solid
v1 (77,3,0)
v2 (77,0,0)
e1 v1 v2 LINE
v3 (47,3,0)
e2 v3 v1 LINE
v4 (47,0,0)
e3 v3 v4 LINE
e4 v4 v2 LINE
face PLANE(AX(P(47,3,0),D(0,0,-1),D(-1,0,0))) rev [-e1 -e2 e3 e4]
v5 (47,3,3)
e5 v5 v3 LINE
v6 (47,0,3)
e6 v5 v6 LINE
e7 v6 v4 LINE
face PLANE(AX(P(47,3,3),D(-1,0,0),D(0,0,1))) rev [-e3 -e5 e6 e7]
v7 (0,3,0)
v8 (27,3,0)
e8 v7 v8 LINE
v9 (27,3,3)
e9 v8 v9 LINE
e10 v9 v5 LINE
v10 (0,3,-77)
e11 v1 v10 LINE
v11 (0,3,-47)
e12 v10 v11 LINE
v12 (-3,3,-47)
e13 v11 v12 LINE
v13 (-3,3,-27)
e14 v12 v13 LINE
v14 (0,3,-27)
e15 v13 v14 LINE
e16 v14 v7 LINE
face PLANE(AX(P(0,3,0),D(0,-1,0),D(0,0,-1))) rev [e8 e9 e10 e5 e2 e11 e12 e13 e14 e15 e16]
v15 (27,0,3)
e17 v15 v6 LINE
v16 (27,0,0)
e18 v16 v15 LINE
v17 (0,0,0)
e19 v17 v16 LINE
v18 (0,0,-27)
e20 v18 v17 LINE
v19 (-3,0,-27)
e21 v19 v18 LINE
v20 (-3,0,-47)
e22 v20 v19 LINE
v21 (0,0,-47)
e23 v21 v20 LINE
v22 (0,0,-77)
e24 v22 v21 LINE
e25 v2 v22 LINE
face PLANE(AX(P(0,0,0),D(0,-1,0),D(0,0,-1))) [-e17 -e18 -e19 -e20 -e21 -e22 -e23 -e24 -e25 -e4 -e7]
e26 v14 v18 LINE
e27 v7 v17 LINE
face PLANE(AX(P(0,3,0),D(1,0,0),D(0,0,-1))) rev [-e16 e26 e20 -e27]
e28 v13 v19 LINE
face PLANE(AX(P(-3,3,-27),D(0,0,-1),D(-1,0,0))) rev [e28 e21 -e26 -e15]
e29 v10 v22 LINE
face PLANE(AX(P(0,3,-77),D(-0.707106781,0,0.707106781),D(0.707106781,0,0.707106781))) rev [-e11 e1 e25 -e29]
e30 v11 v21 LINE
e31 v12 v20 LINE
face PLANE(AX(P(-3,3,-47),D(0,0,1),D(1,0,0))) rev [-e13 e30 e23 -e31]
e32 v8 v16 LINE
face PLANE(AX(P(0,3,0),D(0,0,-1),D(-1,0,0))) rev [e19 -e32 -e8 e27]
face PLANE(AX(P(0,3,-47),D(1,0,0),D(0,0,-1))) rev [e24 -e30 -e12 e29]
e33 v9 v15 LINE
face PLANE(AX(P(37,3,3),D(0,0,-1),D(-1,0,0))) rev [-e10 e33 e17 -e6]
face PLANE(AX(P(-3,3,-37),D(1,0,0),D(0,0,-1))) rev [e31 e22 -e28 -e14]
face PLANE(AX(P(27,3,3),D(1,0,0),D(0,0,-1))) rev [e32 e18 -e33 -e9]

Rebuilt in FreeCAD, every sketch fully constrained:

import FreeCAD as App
import Part
import Sketcher

V = App.Vector


def add_polygon(sketch, points):
    """Adds a closed chain of lines whose ends are joined by coincident constraints."""
    first, n = sketch.GeometryCount, len(points)
    for a, b in zip(points, points[1:] + points[:1]):
        sketch.addGeometry(Part.LineSegment(App.Vector(*a, 0), App.Vector(*b, 0)), False)
    for i in range(n):
        sketch.addConstraint(Sketcher.Constraint("Coincident", first + i, 2, first + (i + 1) % n, 1))

doc = App.newDocument("Part")
body = doc.addObject("PartDesign::Body", "Body")

# Sketch on XZ plane
sketch1 = body.newObject("Sketcher::SketchObject", "Sketch")
sketch1.AttachmentSupport = (doc.getObject("XZ_Plane"), [""])
sketch1.MapMode = "FlatFace"
add_polygon(sketch1, [(0, 0), (27, 0), (27, 3), (47, 3), (47, 0), (77, 0), (0, -77), (0, -47), (-3, -47), (-3, -27), (0, -27)])  # lines 0-10
sketch1.addConstraint([
    Sketcher.Constraint("Horizontal", 0),
    Sketcher.Constraint("Vertical", 1),
    Sketcher.Constraint("Horizontal", 2),
    Sketcher.Constraint("Vertical", 3),
    Sketcher.Constraint("Horizontal", 4),
    Sketcher.Constraint("Vertical", 6),
    Sketcher.Constraint("Horizontal", 7),
    Sketcher.Constraint("Vertical", 8),
    Sketcher.Constraint("Horizontal", 9),
    Sketcher.Constraint("Vertical", 10),
    Sketcher.Constraint("Coincident", 10, 2, -1, 1),
    Sketcher.Constraint("PointOnObject", 3, 2, -1),
    Sketcher.Constraint("PointOnObject", 5, 2, -2),
    Sketcher.Constraint("Equal", 9, 1),
    Sketcher.Constraint("Equal", 4, 6),
    Sketcher.Constraint("Equal", 2, 8),
    Sketcher.Constraint("Equal", 0, 10),
    Sketcher.Constraint("DistanceX", 0, 1, 0, 2, 27.0),
    Sketcher.Constraint("DistanceX", 2, 1, 2, 2, 20.0),
    Sketcher.Constraint("DistanceX", 4, 1, 4, 2, 30.0),
    Sketcher.Constraint("DistanceX", 7, 2, 7, 1, 3.0),
])
pad1 = body.newObject("PartDesign::Pad", "Pad")
pad1.Profile = sketch1
pad1.Length = 3
pad1.Reversed = True

doc.recompute()
